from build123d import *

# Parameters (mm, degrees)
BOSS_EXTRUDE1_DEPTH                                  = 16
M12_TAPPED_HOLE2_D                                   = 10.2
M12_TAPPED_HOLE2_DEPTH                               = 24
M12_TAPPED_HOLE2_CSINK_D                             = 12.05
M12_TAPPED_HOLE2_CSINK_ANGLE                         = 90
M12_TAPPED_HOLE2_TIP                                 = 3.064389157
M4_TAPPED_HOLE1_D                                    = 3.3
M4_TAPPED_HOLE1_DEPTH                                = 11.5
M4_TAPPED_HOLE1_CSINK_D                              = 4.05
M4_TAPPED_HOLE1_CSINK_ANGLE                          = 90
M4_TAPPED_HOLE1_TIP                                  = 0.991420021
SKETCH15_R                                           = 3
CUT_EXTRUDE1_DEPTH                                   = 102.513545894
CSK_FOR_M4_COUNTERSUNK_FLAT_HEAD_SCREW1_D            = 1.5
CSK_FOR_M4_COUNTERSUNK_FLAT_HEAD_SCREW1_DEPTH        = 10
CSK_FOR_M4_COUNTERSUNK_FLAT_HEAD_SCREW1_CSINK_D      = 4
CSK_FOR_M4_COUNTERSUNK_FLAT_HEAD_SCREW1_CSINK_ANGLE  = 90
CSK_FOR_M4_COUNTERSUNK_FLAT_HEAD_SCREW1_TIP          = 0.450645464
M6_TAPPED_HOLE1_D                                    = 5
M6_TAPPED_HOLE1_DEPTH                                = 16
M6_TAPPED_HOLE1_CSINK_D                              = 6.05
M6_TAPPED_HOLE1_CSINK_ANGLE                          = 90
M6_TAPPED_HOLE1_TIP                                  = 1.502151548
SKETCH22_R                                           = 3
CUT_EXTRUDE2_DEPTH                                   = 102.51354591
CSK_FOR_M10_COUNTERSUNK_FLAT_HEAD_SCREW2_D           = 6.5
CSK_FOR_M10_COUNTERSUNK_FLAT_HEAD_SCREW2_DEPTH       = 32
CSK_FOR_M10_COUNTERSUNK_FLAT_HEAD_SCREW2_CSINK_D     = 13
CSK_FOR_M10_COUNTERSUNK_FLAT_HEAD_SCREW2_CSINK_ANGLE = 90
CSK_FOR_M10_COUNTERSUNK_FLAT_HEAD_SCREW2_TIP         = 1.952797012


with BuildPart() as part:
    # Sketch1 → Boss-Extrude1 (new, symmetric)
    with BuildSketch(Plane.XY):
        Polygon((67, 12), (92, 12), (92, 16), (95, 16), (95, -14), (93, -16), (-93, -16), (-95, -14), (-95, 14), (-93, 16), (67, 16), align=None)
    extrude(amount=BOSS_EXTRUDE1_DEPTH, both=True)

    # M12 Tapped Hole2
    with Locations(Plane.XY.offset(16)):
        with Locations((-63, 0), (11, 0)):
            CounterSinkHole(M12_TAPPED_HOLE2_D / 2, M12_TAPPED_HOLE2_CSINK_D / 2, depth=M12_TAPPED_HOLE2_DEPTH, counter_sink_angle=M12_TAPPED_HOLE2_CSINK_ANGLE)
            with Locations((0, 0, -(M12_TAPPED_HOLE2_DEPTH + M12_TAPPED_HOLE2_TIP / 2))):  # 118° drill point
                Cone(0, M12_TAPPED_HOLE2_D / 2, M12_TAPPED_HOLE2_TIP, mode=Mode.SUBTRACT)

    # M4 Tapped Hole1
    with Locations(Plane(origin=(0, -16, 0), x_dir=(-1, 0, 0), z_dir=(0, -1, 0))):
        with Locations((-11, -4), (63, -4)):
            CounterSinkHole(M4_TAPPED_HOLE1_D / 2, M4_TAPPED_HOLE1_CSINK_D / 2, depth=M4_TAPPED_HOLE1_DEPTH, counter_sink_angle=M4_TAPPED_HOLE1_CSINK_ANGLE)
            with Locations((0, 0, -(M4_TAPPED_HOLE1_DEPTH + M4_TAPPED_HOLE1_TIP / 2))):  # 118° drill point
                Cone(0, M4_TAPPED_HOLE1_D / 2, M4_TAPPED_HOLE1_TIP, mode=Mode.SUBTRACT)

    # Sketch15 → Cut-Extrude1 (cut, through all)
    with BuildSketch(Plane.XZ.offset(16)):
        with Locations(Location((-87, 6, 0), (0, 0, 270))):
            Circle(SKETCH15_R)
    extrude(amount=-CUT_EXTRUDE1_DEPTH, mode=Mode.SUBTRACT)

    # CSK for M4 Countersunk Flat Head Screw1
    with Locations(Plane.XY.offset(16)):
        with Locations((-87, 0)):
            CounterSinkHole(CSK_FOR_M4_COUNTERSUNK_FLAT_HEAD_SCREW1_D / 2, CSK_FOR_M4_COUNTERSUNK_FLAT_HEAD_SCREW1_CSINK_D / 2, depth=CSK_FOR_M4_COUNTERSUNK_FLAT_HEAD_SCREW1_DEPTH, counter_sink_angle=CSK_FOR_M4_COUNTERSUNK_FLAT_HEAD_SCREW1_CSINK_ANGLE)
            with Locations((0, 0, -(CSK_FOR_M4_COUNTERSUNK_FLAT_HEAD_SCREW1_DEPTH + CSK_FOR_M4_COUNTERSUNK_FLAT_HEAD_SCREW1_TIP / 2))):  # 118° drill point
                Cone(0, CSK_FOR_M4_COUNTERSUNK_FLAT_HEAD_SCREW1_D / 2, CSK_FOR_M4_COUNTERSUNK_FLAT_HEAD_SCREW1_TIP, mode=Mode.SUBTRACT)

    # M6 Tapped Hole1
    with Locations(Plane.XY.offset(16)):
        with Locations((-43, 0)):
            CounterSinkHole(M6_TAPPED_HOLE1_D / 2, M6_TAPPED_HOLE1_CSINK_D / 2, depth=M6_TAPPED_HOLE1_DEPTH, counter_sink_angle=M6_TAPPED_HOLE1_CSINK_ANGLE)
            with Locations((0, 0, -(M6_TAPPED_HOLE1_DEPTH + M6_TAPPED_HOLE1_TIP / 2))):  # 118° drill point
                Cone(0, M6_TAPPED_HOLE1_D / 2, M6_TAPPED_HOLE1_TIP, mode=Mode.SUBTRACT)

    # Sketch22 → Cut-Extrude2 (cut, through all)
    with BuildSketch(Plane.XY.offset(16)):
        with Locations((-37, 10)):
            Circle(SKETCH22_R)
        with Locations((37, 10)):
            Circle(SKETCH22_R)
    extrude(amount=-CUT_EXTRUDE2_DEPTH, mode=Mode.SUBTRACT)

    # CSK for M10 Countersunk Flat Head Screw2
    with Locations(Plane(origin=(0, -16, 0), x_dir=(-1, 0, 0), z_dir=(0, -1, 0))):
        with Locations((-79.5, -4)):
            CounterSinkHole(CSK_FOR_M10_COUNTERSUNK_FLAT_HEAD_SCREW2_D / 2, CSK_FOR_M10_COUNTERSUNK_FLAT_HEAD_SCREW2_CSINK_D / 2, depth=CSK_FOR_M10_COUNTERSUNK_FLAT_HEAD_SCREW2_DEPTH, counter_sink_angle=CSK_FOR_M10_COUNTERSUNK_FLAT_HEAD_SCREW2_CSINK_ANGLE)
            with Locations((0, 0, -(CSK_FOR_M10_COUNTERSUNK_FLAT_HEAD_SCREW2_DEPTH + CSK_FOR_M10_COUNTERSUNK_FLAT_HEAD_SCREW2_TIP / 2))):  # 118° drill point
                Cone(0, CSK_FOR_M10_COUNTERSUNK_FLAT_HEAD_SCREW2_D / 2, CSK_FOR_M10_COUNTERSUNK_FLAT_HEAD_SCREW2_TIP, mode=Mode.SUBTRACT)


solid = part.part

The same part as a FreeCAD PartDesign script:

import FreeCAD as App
import Part
import Sketcher

V = App.Vector
Q = App.Units.Quantity

doc = App.newDocument("Part")
body = doc.addObject("PartDesign::Body", "Body")

sketch1 = body.newObject("Sketcher::SketchObject", "Sketch")
sketch1.AttachmentSupport = (doc.getObject("XY_Plane"), [""])
sketch1.MapMode = "FlatFace"
sketch1.addGeometry([
    Part.LineSegment(V(92, 12, 0), V(67, 12, 0)),
    Part.LineSegment(V(67, 12, 0), V(67, 16, 0)),
    Part.LineSegment(V(67, 16, 0), V(-93, 16, 0)),
    Part.LineSegment(V(-93, 16, 0), V(-95, 14, 0)),
    Part.LineSegment(V(-95, 14, 0), V(-95, -14, 0)),
    Part.LineSegment(V(-95, -14, 0), V(-93, -16, 0)),
    Part.LineSegment(V(-93, -16, 0), V(93, -16, 0)),
    Part.LineSegment(V(93, -16, 0), V(95, -14, 0)),
    Part.LineSegment(V(95, -14, 0), V(95, 16, 0)),
    Part.LineSegment(V(95, 16, 0), V(92, 16, 0)),
    Part.LineSegment(V(92, 16, 0), V(92, 12, 0)),
], False)
sketch1.addConstraint([
    Sketcher.Constraint("Coincident", 0, 2, 1, 1),
    Sketcher.Constraint("Coincident", 1, 2, 2, 1),
    Sketcher.Constraint("Coincident", 2, 2, 3, 1),
    Sketcher.Constraint("Coincident", 3, 2, 4, 1),
    Sketcher.Constraint("Coincident", 4, 2, 5, 1),
    Sketcher.Constraint("Coincident", 5, 2, 6, 1),
    Sketcher.Constraint("Coincident", 6, 2, 7, 1),
    Sketcher.Constraint("Coincident", 7, 2, 8, 1),
    Sketcher.Constraint("Coincident", 8, 2, 9, 1),
    Sketcher.Constraint("Coincident", 9, 2, 10, 1),
    Sketcher.Constraint("Coincident", 10, 2, 0, 1),
    Sketcher.Constraint("Horizontal", 0),
    Sketcher.Constraint("Vertical", 1),
    Sketcher.Constraint("Horizontal", 2),
    Sketcher.Constraint("Vertical", 4),
    Sketcher.Constraint("Horizontal", 6),
    Sketcher.Constraint("Vertical", 8),
    Sketcher.Constraint("Horizontal", 9),
    Sketcher.Constraint("Vertical", 10),
    Sketcher.Constraint("Symmetric", 2, 2, 6, 2, -1, 1),
    Sketcher.Constraint("Symmetric", 3, 2, 7, 2, -1, 1),
    Sketcher.Constraint("Perpendicular", 3, 5),
    Sketcher.Constraint("Horizontal", 4, 2, 7, 2),
    Sketcher.Constraint("Horizontal", 2, 2, 8, 2),
    Sketcher.Constraint("Vertical", 2, 2, 5, 2),
    Sketcher.Constraint("DistanceX", 0, 2, 0, 1, Q("25 mm")),
    Sketcher.Constraint("DistanceX", 2, 2, 2, 1, Q("160 mm")),
    Sketcher.Constraint("DistanceX", 6, 1, 6, 2, Q("186 mm")),
    Sketcher.Constraint("DistanceX", 9, 2, 9, 1, Q("3 mm")),
    Sketcher.Constraint("DistanceY", 1, 1, 1, 2, Q("4 mm")),
    Sketcher.Constraint("DistanceY", 4, 2, 4, 1, Q("28 mm")),
])
pad1 = body.newObject("PartDesign::Pad", "Pad")
pad1.Profile = sketch1
pad1.Length = 32
pad1.Midplane = True

sketch2 = body.newObject("Sketcher::SketchObject", "Sketch001")
sketch2.AttachmentSupport = (doc.getObject("XY_Plane"), [""])
sketch2.MapMode = "FlatFace"
sketch2.AttachmentOffset = App.Placement(V(0, 0, 16), App.Rotation())
sketch2.addGeometry([
    Part.Circle(V(-63, 0, 0), V(0, 0, 1), 5),
    Part.Circle(V(11, 0, 0), V(0, 0, 1), 5),
], False)
sketch2.addConstraint([
    Sketcher.Constraint("Equal", 0, 1),
    Sketcher.Constraint("PointOnObject", 0, 3, -1),
    Sketcher.Constraint("PointOnObject", 1, 3, -1),
    Sketcher.Constraint("Diameter", 0, Q("10.2 mm")),
    Sketcher.Constraint("DistanceX", 0, 3, -1, 1, Q("63 mm")),
    Sketcher.Constraint("DistanceX", -1, 1, 1, 3, Q("11 mm")),
])
doc.recompute()
hole = body.newObject("PartDesign::Hole", "Hole")
hole.Profile = sketch2
hole.ThreadType = "None"
hole.Diameter = 10.2
hole.DepthType = "Dimension"
hole.Depth = 24
hole.DrillPoint = "Angled"
hole.DrillPointAngle = 118
hole.HoleCutType = "Countersink"
hole.HoleCutDiameter = 12.05
hole.HoleCutCountersinkAngle = 90

sketch3 = body.newObject("Sketcher::SketchObject", "Sketch002")
sketch3.AttachmentSupport = (doc.getObject("XZ_Plane"), [""])
sketch3.MapMode = "FlatFace"
sketch3.AttachmentOffset = App.Placement(V(0, 0, 16), App.Rotation())
sketch3.addGeometry([
    Part.Circle(V(11, 4, 0), V(0, 0, 1), 1.6),
    Part.Circle(V(-63, 4, 0), V(0, 0, 1), 1.6),
], False)
sketch3.addConstraint([
    Sketcher.Constraint("Equal", 0, 1),
    Sketcher.Constraint("Horizontal", 0, 3, 1, 3),
    Sketcher.Constraint("Diameter", 0, Q("3.3 mm")),
    Sketcher.Constraint("DistanceX", -1, 1, 0, 3, Q("11 mm")),
    Sketcher.Constraint("DistanceY", -1, 1, 0, 3, Q("4 mm")),
    Sketcher.Constraint("DistanceX", 1, 3, -1, 1, Q("63 mm")),
])
doc.recompute()
hole2 = body.newObject("PartDesign::Hole", "Hole001")
hole2.Profile = sketch3
hole2.ThreadType = "None"
hole2.Diameter = 3.3
hole2.DepthType = "Dimension"
hole2.Depth = 11.5
hole2.DrillPoint = "Angled"
hole2.DrillPointAngle = 118
hole2.HoleCutType = "Countersink"
hole2.HoleCutDiameter = 4.05
hole2.HoleCutCountersinkAngle = 90

sketch4 = body.newObject("Sketcher::SketchObject", "Sketch003")
sketch4.AttachmentSupport = (doc.getObject("XZ_Plane"), [""])
sketch4.MapMode = "FlatFace"
sketch4.AttachmentOffset = App.Placement(V(0, 0, 16), App.Rotation())
sketch4.addGeometry(Part.Circle(V(-87, 6, 0), V(0, 0, 1), 3), False)
sketch4.addConstraint([
    Sketcher.Constraint("Diameter", 0, Q("6 mm")),
    Sketcher.Constraint("DistanceX", 0, 3, -1, 1, Q("87 mm")),
    Sketcher.Constraint("DistanceY", -1, 1, 0, 3, Q("6 mm")),
])
pocket1 = body.newObject("PartDesign::Pocket", "Pocket")
pocket1.Profile = sketch4
pocket1.Type = "ThroughAll"

sketch5 = body.newObject("Sketcher::SketchObject", "Sketch004")
sketch5.AttachmentSupport = (doc.getObject("XY_Plane"), [""])
sketch5.MapMode = "FlatFace"
sketch5.AttachmentOffset = App.Placement(V(0, 0, 16), App.Rotation())
sketch5.addGeometry(Part.Circle(V(-87, 0, 0), V(0, 0, 1), 0.8), False)
sketch5.addConstraint([
    Sketcher.Constraint("PointOnObject", 0, 3, -1),
    Sketcher.Constraint("Diameter", 0, Q("1.5 mm")),
    Sketcher.Constraint("DistanceX", 0, 3, -1, 1, Q("87 mm")),
])
doc.recompute()
hole3 = body.newObject("PartDesign::Hole", "Hole002")
hole3.Profile = sketch5
hole3.ThreadType = "None"
hole3.Diameter = 1.5
hole3.DepthType = "Dimension"
hole3.Depth = 10
hole3.DrillPoint = "Angled"
hole3.DrillPointAngle = 118
hole3.HoleCutType = "Countersink"
hole3.HoleCutDiameter = 4
hole3.HoleCutCountersinkAngle = 90

sketch6 = body.newObject("Sketcher::SketchObject", "Sketch005")
sketch6.AttachmentSupport = (doc.getObject("XY_Plane"), [""])
sketch6.MapMode = "FlatFace"
sketch6.AttachmentOffset = App.Placement(V(0, 0, 16), App.Rotation())
sketch6.addGeometry(Part.Circle(V(-43, 0, 0), V(0, 0, 1), 2.5), False)
sketch6.addConstraint([
    Sketcher.Constraint("PointOnObject", 0, 3, -1),
    Sketcher.Constraint("Diameter", 0, Q("5 mm")),
    Sketcher.Constraint("DistanceX", 0, 3, -1, 1, Q("43 mm")),
])
doc.recompute()
hole4 = body.newObject("PartDesign::Hole", "Hole003")
hole4.Profile = sketch6
hole4.ThreadType = "None"
hole4.Diameter = 5
hole4.DepthType = "Dimension"
hole4.Depth = 16
hole4.DrillPoint = "Angled"
hole4.DrillPointAngle = 118
hole4.HoleCutType = "Countersink"
hole4.HoleCutDiameter = 6.05
hole4.HoleCutCountersinkAngle = 90

sketch7 = body.newObject("Sketcher::SketchObject", "Sketch006")
sketch7.AttachmentSupport = (doc.getObject("XY_Plane"), [""])
sketch7.MapMode = "FlatFace"
sketch7.AttachmentOffset = App.Placement(V(0, 0, 16), App.Rotation())
sketch7.addGeometry([
    Part.Circle(V(-37, 10, 0), V(0, 0, 1), 3),
    Part.Circle(V(37, 10, 0), V(0, 0, 1), 3),
], False)
sketch7.addConstraint([
    Sketcher.Constraint("Equal", 0, 1),
    Sketcher.Constraint("Symmetric", 0, 3, 1, 3, -2),
    Sketcher.Constraint("Diameter", 0, Q("6 mm")),
    Sketcher.Constraint("DistanceX", 0, 3, -1, 1, Q("37 mm")),
    Sketcher.Constraint("DistanceY", -1, 1, 0, 3, Q("10 mm")),
])
pocket2 = body.newObject("PartDesign::Pocket", "Pocket001")
pocket2.Profile = sketch7
pocket2.Type = "ThroughAll"

sketch8 = body.newObject("Sketcher::SketchObject", "Sketch007")
sketch8.AttachmentSupport = (doc.getObject("XZ_Plane"), [""])
sketch8.MapMode = "FlatFace"
sketch8.AttachmentOffset = App.Placement(V(0, 0, 16), App.Rotation())
sketch8.addGeometry(Part.Circle(V(79.5, 4, 0), V(0, 0, 1), 3.2), False)
sketch8.addConstraint([
    Sketcher.Constraint("Diameter", 0, Q("6.5 mm")),
    Sketcher.Constraint("DistanceY", -1, 1, 0, 3, Q("4 mm")),
    Sketcher.Constraint("DistanceX", -1, 1, 0, 3, Q("79.5 mm")),
])
doc.recompute()
hole5 = body.newObject("PartDesign::Hole", "Hole004")
hole5.Profile = sketch8
hole5.ThreadType = "None"
hole5.Diameter = 6.5
hole5.DepthType = "Dimension"
hole5.Depth = 32
hole5.DrillPoint = "Angled"
hole5.DrillPointAngle = 118
hole5.HoleCutType = "Countersink"
hole5.HoleCutDiameter = 13
hole5.HoleCutCountersinkAngle = 90

doc.recompute()
